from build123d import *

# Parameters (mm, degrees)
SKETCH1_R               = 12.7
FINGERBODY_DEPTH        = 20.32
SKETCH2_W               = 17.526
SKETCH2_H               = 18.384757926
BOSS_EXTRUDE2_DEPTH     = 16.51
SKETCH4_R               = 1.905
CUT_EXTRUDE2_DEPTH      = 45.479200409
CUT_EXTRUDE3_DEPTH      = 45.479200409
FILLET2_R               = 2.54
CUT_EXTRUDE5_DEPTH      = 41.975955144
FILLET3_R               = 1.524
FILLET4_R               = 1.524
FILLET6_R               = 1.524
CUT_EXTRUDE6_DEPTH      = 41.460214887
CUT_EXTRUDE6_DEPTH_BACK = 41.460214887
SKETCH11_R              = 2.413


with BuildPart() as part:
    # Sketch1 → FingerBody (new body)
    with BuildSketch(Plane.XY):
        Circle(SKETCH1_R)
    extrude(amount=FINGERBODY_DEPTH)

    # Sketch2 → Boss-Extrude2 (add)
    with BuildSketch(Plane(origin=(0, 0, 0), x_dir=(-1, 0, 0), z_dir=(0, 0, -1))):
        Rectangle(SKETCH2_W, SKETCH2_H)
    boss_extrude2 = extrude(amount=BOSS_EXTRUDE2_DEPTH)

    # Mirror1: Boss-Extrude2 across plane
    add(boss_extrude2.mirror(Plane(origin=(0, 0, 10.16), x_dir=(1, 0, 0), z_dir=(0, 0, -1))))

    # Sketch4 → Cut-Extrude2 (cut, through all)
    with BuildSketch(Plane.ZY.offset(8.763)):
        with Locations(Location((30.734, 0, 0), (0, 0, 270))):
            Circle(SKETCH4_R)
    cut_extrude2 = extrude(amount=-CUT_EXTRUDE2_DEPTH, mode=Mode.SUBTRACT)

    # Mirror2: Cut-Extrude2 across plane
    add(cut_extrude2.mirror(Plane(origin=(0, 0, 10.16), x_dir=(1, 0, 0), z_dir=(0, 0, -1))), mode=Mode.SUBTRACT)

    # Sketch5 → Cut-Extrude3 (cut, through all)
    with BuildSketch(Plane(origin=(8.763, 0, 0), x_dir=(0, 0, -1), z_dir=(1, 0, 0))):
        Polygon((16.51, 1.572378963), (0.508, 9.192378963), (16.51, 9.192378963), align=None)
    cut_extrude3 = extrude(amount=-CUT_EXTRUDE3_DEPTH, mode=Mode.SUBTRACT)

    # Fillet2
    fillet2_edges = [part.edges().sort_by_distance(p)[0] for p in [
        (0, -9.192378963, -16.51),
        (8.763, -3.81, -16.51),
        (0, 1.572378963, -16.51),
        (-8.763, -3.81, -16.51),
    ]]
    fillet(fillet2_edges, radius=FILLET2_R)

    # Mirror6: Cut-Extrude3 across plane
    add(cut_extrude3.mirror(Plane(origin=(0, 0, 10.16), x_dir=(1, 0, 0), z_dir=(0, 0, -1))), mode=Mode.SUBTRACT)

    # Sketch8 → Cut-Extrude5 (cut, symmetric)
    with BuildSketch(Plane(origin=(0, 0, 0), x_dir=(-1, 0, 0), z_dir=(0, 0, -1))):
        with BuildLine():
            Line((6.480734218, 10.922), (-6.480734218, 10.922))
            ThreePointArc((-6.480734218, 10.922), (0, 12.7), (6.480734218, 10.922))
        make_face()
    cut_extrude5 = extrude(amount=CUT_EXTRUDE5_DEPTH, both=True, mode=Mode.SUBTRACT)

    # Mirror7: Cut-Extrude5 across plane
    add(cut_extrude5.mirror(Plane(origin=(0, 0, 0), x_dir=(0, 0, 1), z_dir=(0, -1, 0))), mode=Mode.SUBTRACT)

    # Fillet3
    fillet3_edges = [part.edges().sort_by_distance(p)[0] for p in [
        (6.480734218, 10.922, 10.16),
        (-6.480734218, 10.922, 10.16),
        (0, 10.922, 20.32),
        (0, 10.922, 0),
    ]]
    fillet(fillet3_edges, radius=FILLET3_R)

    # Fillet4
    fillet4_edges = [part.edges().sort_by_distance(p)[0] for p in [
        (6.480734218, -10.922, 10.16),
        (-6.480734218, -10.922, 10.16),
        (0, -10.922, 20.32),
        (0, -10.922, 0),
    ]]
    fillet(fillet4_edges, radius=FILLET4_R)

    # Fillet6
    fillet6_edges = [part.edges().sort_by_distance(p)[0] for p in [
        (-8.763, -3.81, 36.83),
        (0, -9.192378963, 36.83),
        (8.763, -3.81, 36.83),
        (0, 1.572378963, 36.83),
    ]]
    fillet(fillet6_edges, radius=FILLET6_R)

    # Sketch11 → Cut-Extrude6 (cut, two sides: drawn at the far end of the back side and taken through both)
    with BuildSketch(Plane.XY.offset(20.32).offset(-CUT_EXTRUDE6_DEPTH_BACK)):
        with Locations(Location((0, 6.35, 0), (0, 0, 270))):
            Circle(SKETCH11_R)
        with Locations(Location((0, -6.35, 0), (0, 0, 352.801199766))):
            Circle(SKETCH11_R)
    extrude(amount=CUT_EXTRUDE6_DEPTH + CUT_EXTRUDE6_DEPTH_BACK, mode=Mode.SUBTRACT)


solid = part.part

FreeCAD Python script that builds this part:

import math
import FreeCAD as App
import Part
import Sketcher
Q = App.Units.Quantity


def edges_at(feature, points):
    """Names of the edges that pass closest to the given points."""
    edges = feature.Shape.Edges
    near = lambda p: min(range(len(edges)), key=lambda i: edges[i].distToShape(Part.Vertex(*p))[0])
    return sorted({f"Edge{near(p) + 1}" for p in points})


def add_polygon(sketch, points):
    """Adds a closed chain of lines whose ends are joined by coincident constraints."""
    first, n = sketch.GeometryCount, len(points)
    for a, b in zip(points, points[1:] + points[:1]):
        sketch.addGeometry(Part.LineSegment(App.Vector(*a, 0), App.Vector(*b, 0)), False)
    for i in range(n):
        sketch.addConstraint(Sketcher.Constraint("Coincident", first + i, 2, first + (i + 1) % n, 1))

doc = App.newDocument("Part")
params = doc.addObject("Spreadsheet::Sheet", "Params")
for row, (alias, value) in enumerate([
    ("sketch1_diameter", "1 in"),
    ("pad1_length", "0.8 in"),
    ("sketch2_width", "0.69 in"),
    ("pad2_length", "0.65 in"),
    ("sketch3_diameter", "0.15 in"),
    ("sketch4_width", "0.3 in"),
    ("sketch4_height", "0.63 in"),
    ("fillet_radius", "0.1 in"),
    ("sketch5_radius", "0.5 in"),
    ("pocket3_length", "83.95191 mm"),
    ("fillet2_radius", "0.06 in"),
    ("fillet3_radius", "0.06 in"),
    ("fillet4_radius", "0.06 in"),
    ("sketch6_diameter", "0.19 in"),
], start=1):
    params.set(f"A{row}", alias)
    params.set(f"B{row}", "=" + value)
    params.setAlias(f"B{row}", alias)

body = doc.addObject("PartDesign::Body", "Body")

# Sketch on XY plane
sketch1 = doc.addObject("Sketcher::SketchObject", "Sketch")
body.addObject(sketch1)
sketch1.AttachmentSupport = (doc.XY_Plane, [""])
sketch1.MapMode = "FlatFace"
sketch1.addGeometry(Part.Circle(App.Vector(0, 0, 0), App.Vector(0, 0, 1), 12.7), False)
sketch1.addConstraint(Sketcher.Constraint("Coincident", 0, 3, -1, 1))
sketch1.addConstraint(Sketcher.Constraint("Diameter", 0, Q("1 in")))
sketch1.setExpression("Constraints[1]", "Params.sketch1_diameter")
pad1 = doc.addObject("PartDesign::Pad", "Pad")
body.addObject(pad1)
pad1.Profile = sketch1
pad1.setExpression("Length", "Params.pad1_length")

# Sketch on XY plane
sketch2 = doc.addObject("Sketcher::SketchObject", "Sketch001")
body.addObject(sketch2)
sketch2.AttachmentSupport = (doc.XY_Plane, [""])
sketch2.MapMode = "FlatFace"
add_polygon(sketch2, [(8.763, 9.192379), (8.763, -9.192379), (-8.763, -9.192379), (-8.763, 9.192379)])  # lines 0-3
sketch2.addConstraint(Sketcher.Constraint("Vertical", 0))
sketch2.addConstraint(Sketcher.Constraint("Horizontal", 1))
sketch2.addConstraint(Sketcher.Constraint("Vertical", 2))
sketch2.addConstraint(Sketcher.Constraint("Horizontal", 3))
sketch2.addConstraint(Sketcher.Constraint("Symmetric", 0, 2, 2, 2, -1, 1))
sketch2.addConstraint(Sketcher.Constraint("DistanceX", 1, 2, 1, 1, Q("0.69 in")))
sketch2.addConstraint(Sketcher.Constraint("DistanceY", 0, 2, 0, 1, 18.384758))
sketch2.setExpression("Constraints[9]", "Params.sketch2_width")
pad2 = doc.addObject("PartDesign::Pad", "Pad001")
body.addObject(pad2)
pad2.Profile = sketch2
pad2.setExpression("Length", "Params.pad2_length")
pad2.Reversed = True
doc.recompute()

datumplane = doc.addObject("PartDesign::Plane", "DatumPlane")
body.addObject(datumplane)
datumplane.AttachmentSupport = (doc.XY_Plane, [""])
datumplane.MapMode = "FlatFace"
datumplane.AttachmentOffset = App.Placement(App.Vector(0, 0, 0.4 * 25.4), App.Rotation())
mirrored = doc.addObject("PartDesign::Mirrored", "Mirrored")
body.addObject(mirrored)
mirrored.Originals = [pad2]
mirrored.MirrorPlane = (datumplane, [""])
body.Tip = mirrored

# Sketch on YZ plane
sketch3 = doc.addObject("Sketcher::SketchObject", "Sketch002")
body.addObject(sketch3)
sketch3.AttachmentSupport = (doc.YZ_Plane, [""])
sketch3.MapMode = "FlatFace"
sketch3.AttachmentOffset = App.Placement(App.Vector(0, 0, -0.345 * 25.4), App.Rotation())
sketch3.addGeometry(Part.Circle(App.Vector(0, 30.734, 0), App.Vector(0, 0, 1), 1.905), False)
sketch3.addConstraint(Sketcher.Constraint("PointOnObject", 0, 3, -2))
sketch3.addConstraint(Sketcher.Constraint("Diameter", 0, Q("0.15 in")))
sketch3.addConstraint(Sketcher.Constraint("DistanceY", -1, 1, 0, 3, Q("1.21 in")))
sketch3.setExpression("Constraints[1]", "Params.sketch3_diameter")
pocket1 = doc.addObject("PartDesign::Pocket", "Pocket")
body.addObject(pocket1)
pocket1.Profile = sketch3
pocket1.Type = "ThroughAll"
pocket1.Reversed = True
doc.recompute()

datumplane2 = doc.addObject("PartDesign::Plane", "DatumPlane001")
body.addObject(datumplane2)
datumplane2.AttachmentSupport = (doc.XY_Plane, [""])
datumplane2.MapMode = "FlatFace"
datumplane2.AttachmentOffset = App.Placement(App.Vector(0, 0, 0.4 * 25.4), App.Rotation())
mirrored2 = doc.addObject("PartDesign::Mirrored", "Mirrored001")
body.addObject(mirrored2)
mirrored2.Originals = [pocket1]
mirrored2.MirrorPlane = (datumplane2, [""])
body.Tip = mirrored2

# Sketch on YZ plane
sketch4 = doc.addObject("Sketcher::SketchObject", "Sketch003")
body.addObject(sketch4)
sketch4.AttachmentSupport = (doc.YZ_Plane, [""])
sketch4.MapMode = "FlatFace"
sketch4.AttachmentOffset = App.Placement(App.Vector(0, 0, 0.345 * 25.4), App.Rotation())
add_polygon(sketch4, [(9.192379, -0.508), (1.572379, -16.51), (9.192379, -16.51)])  # lines 0-2
sketch4.addConstraint(Sketcher.Constraint("Horizontal", 1))
sketch4.addConstraint(Sketcher.Constraint("Vertical", 2))
sketch4.addConstraint(Sketcher.Constraint("DistanceX", 1, 1, 1, 2, Q("0.3 in")))
sketch4.addConstraint(Sketcher.Constraint("DistanceY", 2, 1, 2, 2, Q("0.63 in")))
sketch4.addConstraint(Sketcher.Constraint("DistanceY", 0, 2, -1, 1, Q("0.65 in")))
sketch4.addConstraint(Sketcher.Constraint("DistanceX", -1, 1, 0, 2, 1.572379))
sketch4.setExpression("Constraints[5]", "Params.sketch4_width")
sketch4.setExpression("Constraints[6]", "Params.sketch4_height")
pocket2 = doc.addObject("PartDesign::Pocket", "Pocket001")
body.addObject(pocket2)
pocket2.Profile = sketch4
pocket2.Type = "ThroughAll"
doc.recompute()

fillet = doc.addObject("PartDesign::Fillet", "Fillet")
body.addObject(fillet)
fillet.Base = (pocket2, edges_at(pocket2, [
    (0, -9.192, -16.51),
    (8.763, -3.81, -16.51),
    (0, 1.572, -16.51),
    (-8.763, -3.81, -16.51),
]))
fillet.setExpression("Radius", "Params.fillet_radius")
doc.recompute()

datumplane3 = doc.addObject("PartDesign::Plane", "DatumPlane002")
body.addObject(datumplane3)
datumplane3.AttachmentSupport = (doc.XY_Plane, [""])
datumplane3.MapMode = "FlatFace"
datumplane3.AttachmentOffset = App.Placement(App.Vector(0, 0, 0.4 * 25.4), App.Rotation())
mirrored3 = doc.addObject("PartDesign::Mirrored", "Mirrored002")
body.addObject(mirrored3)
mirrored3.Originals = [pocket2]
mirrored3.MirrorPlane = (datumplane3, [""])
body.Tip = mirrored3

# Sketch on XY plane
sketch5 = doc.addObject("Sketcher::SketchObject", "Sketch004")
body.addObject(sketch5)
sketch5.AttachmentSupport = (doc.XY_Plane, [""])
sketch5.MapMode = "FlatFace"
sketch5.addGeometry(Part.LineSegment(App.Vector(6.480734, 10.922, 0), App.Vector(-6.480734, 10.922, 0)), False)
sketch5.addGeometry(Part.ArcOfCircle(Part.Circle(App.Vector(0, 0, 0), App.Vector(0, 0, 1), 12.7), math.radians(59.316583), math.radians(120.683417)), False)
sketch5.addConstraint(Sketcher.Constraint("Coincident", 0, 1, 1, 1))
sketch5.addConstraint(Sketcher.Constraint("Coincident", 1, 2, 0, 2))
sketch5.addConstraint(Sketcher.Constraint("Horizontal", 0))
sketch5.addConstraint(Sketcher.Constraint("Coincident", 1, 3, -1, 1))
sketch5.addConstraint(Sketcher.Constraint("Radius", 1, Q("0.5 in")))
sketch5.addConstraint(Sketcher.Constraint("DistanceY", -1, 1, 0, 1, Q("0.43 in")))
sketch5.setExpression("Constraints[4]", "Params.sketch5_radius")
pocket3 = doc.addObject("PartDesign::Pocket", "Pocket002")
body.addObject(pocket3)
pocket3.Profile = sketch5
pocket3.setExpression("Length", "Params.pocket3_length")
pocket3.Midplane = True
doc.recompute()

mirrored4 = doc.addObject("PartDesign::Mirrored", "Mirrored003")
body.addObject(mirrored4)
mirrored4.Originals = [pocket3]
mirrored4.MirrorPlane = (doc.XZ_Plane, [""])
body.Tip = mirrored4
doc.recompute()

fillet2 = doc.addObject("PartDesign::Fillet", "Fillet001")
body.addObject(fillet2)
fillet2.Base = (mirrored4, edges_at(mirrored4, [
    (6.481, 10.922, 10.16),
    (-6.481, 10.922, 10.16),
    (0, 10.922, 20.32),
    (0, 10.922, 0),
]))
fillet2.setExpression("Radius", "Params.fillet2_radius")
doc.recompute()

fillet3 = doc.addObject("PartDesign::Fillet", "Fillet002")
body.addObject(fillet3)
fillet3.Base = (fillet2, edges_at(fillet2, [
    (6.481, -10.922, 10.16),
    (-6.481, -10.922, 10.16),
    (0, -10.922, 20.32),
    (0, -10.922, 0),
]))
fillet3.setExpression("Radius", "Params.fillet3_radius")
doc.recompute()

fillet4 = doc.addObject("PartDesign::Fillet", "Fillet003")
body.addObject(fillet4)
fillet4.Base = (fillet3, edges_at(fillet3, [
    (-8.763, -3.81, 36.83),
    (0, -9.192, 36.83),
    (8.763, -3.81, 36.83),
    (0, 1.572, 36.83),
]))
fillet4.setExpression("Radius", "Params.fillet4_radius")

# Sketch on XY plane
sketch6 = doc.addObject("Sketcher::SketchObject", "Sketch005")
body.addObject(sketch6)
sketch6.AttachmentSupport = (doc.XY_Plane, [""])
sketch6.MapMode = "FlatFace"
sketch6.AttachmentOffset = App.Placement(App.Vector(0, 0, 0.8 * 25.4), App.Rotation())
sketch6.addGeometry(Part.Circle(App.Vector(0, 6.35, 0), App.Vector(0, 0, 1), 2.413), False)
sketch6.addGeometry(Part.Circle(App.Vector(0, -6.35, 0), App.Vector(0, 0, 1), 2.413), False)
sketch6.addConstraint(Sketcher.Constraint("Equal", 0, 1))
sketch6.addConstraint(Sketcher.Constraint("Symmetric", 0, 3, 1, 3, -1, 1))
sketch6.addConstraint(Sketcher.Constraint("PointOnObject", 0, 3, -2))
sketch6.addConstraint(Sketcher.Constraint("Diameter", 0, Q("0.19 in")))
sketch6.addConstraint(Sketcher.Constraint("DistanceY", 1, 3, 0, 3, Q("0.5 in")))
sketch6.setExpression("Constraints[3]", "Params.sketch6_diameter")
pocket4 = doc.addObject("PartDesign::Pocket", "Pocket003")
body.addObject(pocket4)
pocket4.Profile = sketch6
pocket4.Type = "ThroughAll"
pocket4.Midplane = True

doc.recompute()
